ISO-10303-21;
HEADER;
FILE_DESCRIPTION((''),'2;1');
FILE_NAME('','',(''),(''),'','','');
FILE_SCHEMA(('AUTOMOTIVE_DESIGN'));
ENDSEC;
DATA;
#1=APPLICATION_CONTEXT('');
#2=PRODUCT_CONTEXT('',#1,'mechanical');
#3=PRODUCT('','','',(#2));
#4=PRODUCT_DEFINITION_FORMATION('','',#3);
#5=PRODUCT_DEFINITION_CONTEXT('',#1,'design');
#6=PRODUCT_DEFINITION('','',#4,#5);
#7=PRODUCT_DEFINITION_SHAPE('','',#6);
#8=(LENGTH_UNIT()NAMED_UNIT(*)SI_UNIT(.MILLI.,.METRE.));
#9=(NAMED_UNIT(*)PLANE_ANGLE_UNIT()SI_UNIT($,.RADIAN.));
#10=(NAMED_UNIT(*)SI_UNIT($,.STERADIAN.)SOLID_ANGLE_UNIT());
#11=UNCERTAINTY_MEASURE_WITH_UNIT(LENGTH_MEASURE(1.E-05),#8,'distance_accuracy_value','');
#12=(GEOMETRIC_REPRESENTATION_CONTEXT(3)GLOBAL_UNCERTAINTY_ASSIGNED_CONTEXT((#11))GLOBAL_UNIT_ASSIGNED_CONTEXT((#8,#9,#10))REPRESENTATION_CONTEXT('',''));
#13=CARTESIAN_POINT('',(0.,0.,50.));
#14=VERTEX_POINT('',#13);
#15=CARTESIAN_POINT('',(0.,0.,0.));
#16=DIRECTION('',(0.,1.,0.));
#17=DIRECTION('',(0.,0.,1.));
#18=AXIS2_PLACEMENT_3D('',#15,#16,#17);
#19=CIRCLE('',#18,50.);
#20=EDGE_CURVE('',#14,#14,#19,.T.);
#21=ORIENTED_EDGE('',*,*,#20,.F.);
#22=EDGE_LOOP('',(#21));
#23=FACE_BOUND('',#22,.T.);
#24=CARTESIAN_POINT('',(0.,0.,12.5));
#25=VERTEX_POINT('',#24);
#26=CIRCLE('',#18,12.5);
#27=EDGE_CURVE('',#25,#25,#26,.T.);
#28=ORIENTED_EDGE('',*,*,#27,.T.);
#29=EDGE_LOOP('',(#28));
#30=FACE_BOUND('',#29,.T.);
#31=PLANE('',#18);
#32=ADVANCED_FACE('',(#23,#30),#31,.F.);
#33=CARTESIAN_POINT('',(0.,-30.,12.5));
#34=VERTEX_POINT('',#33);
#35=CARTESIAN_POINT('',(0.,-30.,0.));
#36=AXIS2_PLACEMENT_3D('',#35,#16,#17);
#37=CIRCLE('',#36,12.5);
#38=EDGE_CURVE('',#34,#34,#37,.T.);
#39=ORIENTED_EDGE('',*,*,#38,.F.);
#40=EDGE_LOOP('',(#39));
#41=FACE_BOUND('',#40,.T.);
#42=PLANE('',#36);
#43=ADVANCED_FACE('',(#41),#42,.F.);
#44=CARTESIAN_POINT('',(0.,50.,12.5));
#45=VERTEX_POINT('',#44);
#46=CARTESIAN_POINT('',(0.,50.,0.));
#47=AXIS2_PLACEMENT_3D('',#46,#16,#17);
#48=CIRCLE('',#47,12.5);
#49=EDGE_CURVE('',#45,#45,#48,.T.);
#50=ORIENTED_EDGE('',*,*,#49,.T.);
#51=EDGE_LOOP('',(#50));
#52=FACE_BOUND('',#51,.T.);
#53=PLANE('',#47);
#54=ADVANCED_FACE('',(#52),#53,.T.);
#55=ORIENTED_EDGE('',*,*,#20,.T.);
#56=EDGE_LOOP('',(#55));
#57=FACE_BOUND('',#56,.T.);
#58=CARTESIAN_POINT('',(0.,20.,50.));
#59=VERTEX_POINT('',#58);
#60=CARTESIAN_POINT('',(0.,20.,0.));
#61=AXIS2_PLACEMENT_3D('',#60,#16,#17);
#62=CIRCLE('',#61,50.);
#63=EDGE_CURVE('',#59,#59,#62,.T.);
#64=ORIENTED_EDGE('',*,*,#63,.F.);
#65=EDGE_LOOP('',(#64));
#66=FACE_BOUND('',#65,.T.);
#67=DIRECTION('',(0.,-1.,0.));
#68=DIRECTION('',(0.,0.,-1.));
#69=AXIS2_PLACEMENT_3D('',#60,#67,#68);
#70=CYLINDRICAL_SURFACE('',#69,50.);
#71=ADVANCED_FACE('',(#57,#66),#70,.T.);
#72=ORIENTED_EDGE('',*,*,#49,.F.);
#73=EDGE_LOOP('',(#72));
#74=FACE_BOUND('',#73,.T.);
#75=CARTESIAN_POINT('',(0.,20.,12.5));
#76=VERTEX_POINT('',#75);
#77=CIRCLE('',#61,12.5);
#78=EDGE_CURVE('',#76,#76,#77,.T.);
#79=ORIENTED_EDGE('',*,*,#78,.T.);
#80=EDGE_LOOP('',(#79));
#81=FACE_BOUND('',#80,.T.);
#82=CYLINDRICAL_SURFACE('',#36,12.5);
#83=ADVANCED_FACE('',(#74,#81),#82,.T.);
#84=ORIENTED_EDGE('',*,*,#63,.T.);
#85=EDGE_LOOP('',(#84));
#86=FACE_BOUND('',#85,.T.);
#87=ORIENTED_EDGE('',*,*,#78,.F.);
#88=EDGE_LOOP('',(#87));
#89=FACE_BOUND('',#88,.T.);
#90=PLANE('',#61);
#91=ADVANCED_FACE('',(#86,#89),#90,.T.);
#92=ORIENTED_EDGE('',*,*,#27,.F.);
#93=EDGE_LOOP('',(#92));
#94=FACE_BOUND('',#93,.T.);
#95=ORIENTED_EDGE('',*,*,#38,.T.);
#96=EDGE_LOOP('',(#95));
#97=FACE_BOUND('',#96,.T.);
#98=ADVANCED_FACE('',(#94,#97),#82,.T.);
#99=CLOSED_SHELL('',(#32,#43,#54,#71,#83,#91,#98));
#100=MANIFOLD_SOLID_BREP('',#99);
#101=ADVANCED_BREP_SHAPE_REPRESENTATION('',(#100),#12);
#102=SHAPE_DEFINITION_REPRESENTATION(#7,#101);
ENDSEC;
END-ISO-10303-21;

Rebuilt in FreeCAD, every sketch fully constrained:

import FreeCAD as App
import Part
import Sketcher

V = App.Vector

doc = App.newDocument("Part")
body = doc.addObject("PartDesign::Body", "Body")

sketch1 = body.newObject("Sketcher::SketchObject", "Sketch")
sketch1.AttachmentSupport = (doc.getObject("XZ_Plane"), [""])
sketch1.MapMode = "FlatFace"
sketch1.addGeometry(Part.Circle(V(0, 0, 0), V(0, 0, 1), 50), False)
sketch1.addConstraint(Sketcher.Constraint("Coincident", 0, 3, -1, 1))
sketch1.addConstraint(Sketcher.Constraint("Diameter", 0, 100.0))
pad1 = body.newObject("PartDesign::Pad", "Pad")
pad1.Profile = sketch1
pad1.Length = 20
pad1.Reversed = True

sketch2 = body.newObject("Sketcher::SketchObject", "Sketch001")
sketch2.AttachmentSupport = (doc.getObject("XZ_Plane"), [""])
sketch2.MapMode = "FlatFace"
sketch2.AttachmentOffset = App.Placement(V(0, 0, -10), App.Rotation())
sketch2.addGeometry(Part.Circle(V(0, 0, 0), V(0, 0, 1), 12), False)
sketch2.addConstraint(Sketcher.Constraint("Coincident", 0, 3, -1, 1))
sketch2.addConstraint(Sketcher.Constraint("Diameter", 0, 25.0))
pad2 = body.newObject("PartDesign::Pad", "Pad001")
pad2.Profile = sketch2
pad2.Type = "TwoLengths"
pad2.Length = 40
pad2.Length2 = 40
pad2.Reversed = True

doc.recompute()
